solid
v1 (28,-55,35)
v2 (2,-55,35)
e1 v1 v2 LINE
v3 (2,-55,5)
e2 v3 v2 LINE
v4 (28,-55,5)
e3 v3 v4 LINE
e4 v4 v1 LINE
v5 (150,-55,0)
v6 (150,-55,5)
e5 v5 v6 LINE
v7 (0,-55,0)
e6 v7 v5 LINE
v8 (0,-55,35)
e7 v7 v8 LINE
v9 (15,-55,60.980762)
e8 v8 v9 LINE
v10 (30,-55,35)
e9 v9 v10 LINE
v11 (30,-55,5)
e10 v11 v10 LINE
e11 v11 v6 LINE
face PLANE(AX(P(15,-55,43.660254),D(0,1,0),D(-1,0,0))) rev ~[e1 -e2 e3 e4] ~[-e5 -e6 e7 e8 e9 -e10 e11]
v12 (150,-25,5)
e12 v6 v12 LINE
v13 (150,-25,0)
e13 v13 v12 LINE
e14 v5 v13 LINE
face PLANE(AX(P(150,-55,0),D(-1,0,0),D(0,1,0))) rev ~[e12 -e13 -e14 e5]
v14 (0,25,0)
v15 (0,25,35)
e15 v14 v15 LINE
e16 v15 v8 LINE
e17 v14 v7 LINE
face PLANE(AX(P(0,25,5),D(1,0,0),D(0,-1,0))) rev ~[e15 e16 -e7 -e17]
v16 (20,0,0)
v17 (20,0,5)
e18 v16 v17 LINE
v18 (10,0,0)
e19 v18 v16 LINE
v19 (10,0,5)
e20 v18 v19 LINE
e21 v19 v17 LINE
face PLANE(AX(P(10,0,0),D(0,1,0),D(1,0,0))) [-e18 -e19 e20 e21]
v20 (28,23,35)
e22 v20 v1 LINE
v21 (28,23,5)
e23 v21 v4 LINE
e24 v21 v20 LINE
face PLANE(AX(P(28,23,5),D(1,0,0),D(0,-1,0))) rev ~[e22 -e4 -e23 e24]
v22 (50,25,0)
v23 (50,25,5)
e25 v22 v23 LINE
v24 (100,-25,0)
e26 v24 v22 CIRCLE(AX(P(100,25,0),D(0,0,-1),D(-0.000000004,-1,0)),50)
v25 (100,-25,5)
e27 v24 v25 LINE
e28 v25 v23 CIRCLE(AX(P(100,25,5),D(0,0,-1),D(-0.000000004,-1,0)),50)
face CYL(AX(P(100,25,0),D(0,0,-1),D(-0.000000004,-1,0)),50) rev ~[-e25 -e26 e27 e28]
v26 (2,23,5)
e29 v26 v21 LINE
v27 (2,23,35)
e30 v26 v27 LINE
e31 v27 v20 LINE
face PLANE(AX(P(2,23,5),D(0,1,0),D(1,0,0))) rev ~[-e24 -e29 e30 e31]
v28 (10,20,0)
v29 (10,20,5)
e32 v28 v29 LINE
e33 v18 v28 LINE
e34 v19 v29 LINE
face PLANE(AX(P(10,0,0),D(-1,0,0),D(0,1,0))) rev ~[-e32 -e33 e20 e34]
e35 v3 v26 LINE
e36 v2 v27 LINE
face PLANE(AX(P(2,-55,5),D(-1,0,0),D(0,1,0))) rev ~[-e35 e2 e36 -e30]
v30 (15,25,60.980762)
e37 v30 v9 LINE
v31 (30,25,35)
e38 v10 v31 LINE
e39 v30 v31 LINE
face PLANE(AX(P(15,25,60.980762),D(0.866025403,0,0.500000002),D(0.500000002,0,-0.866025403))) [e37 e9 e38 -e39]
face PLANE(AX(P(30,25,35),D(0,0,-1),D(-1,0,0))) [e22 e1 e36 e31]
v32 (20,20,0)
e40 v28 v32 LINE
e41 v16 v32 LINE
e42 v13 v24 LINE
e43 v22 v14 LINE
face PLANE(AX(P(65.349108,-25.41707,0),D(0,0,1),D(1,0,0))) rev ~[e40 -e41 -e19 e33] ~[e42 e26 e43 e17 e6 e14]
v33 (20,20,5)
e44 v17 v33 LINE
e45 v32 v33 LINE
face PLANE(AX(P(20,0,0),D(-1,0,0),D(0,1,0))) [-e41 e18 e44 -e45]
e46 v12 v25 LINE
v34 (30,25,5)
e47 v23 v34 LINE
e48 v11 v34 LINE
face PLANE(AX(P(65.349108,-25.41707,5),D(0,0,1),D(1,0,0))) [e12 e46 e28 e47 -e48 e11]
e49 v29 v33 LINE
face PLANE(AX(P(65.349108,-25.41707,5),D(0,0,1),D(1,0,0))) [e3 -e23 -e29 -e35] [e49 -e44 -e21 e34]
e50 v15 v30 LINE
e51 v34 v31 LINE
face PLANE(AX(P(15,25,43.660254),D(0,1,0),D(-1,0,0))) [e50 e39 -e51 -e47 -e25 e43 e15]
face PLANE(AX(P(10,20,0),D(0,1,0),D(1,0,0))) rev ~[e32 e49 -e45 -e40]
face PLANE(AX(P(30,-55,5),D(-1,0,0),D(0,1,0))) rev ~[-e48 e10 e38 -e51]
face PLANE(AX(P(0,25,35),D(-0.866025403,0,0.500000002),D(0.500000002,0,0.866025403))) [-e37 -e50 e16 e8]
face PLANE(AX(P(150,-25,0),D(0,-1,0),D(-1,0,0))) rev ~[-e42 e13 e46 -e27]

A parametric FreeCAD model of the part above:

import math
import FreeCAD as App
import Part
import Sketcher
from FreeCAD import Vector
Q = App.Units.Quantity


def add_polygon(sketch, points):
    """Adds a closed chain of lines whose ends are joined by coincident constraints."""
    first, n = sketch.GeometryCount, len(points)
    for a, b in zip(points, points[1:] + points[:1]):
        sketch.addGeometry(Part.LineSegment(App.Vector(*a, 0), App.Vector(*b, 0)), False)
    for i in range(n):
        sketch.addConstraint(Sketcher.Constraint("Coincident", first + i, 2, first + (i + 1) % n, 1))

doc = App.newDocument("Part")
body = doc.addObject("PartDesign::Body", "Body")

# Sketch on XY plane
sketch1 = doc.addObject("Sketcher::SketchObject", "Sketch")
body.addObject(sketch1)
sketch1.AttachmentSupport = (doc.XY_Plane, [""])
sketch1.MapMode = "FlatFace"
sketch1.addGeometry(Part.LineSegment(Vector(150, -25, 0), Vector(100, -25, 0)), False)  # 0
sketch1.addGeometry(Part.ArcOfCircle(Part.Circle(Vector(100, 25, 0), Vector(0, 0, 1), 50), math.radians(-180), math.radians(-90)), False)  # 1
sketch1.addGeometry(Part.LineSegment(Vector(50, 25, 0), Vector(0, 25, 0)), False)  # 2
sketch1.addGeometry(Part.LineSegment(Vector(0, 25, 0), Vector(0, -55, 0)), False)  # 3
sketch1.addGeometry(Part.LineSegment(Vector(0, -55, 0), Vector(150, -55, 0)), False)  # 4
sketch1.addGeometry(Part.LineSegment(Vector(150, -55, 0), Vector(150, -25, 0)), False)  # 5
add_polygon(sketch1, [(20, 0), (10, 0), (10, 20), (20, 20)])  # lines 6-9
sketch1.addConstraint([
    Sketcher.Constraint("Tangent", 0, 2, 1, 2),
    Sketcher.Constraint("Coincident", 1, 1, 2, 1),
    Sketcher.Constraint("Coincident", 2, 2, 3, 1),
    Sketcher.Constraint("Coincident", 3, 2, 4, 1),
    Sketcher.Constraint("Coincident", 4, 2, 5, 1),
    Sketcher.Constraint("Coincident", 5, 2, 0, 1),
    Sketcher.Constraint("Horizontal", 0),
    Sketcher.Constraint("Horizontal", 2),
    Sketcher.Constraint("Vertical", 3),
    Sketcher.Constraint("Horizontal", 4),
    Sketcher.Constraint("Vertical", 5),
    Sketcher.Constraint("Horizontal", 6),
    Sketcher.Constraint("Vertical", 7),
    Sketcher.Constraint("Horizontal", 8),
    Sketcher.Constraint("Vertical", 9),
    Sketcher.Constraint("PointOnObject", 2, 2, -2),
    Sketcher.Constraint("PointOnObject", 6, 2, -1),
    Sketcher.Constraint("Equal", 0, 2),
    Sketcher.Constraint("Radius", 1, 50.0),
    Sketcher.Constraint("DistanceX", 0, 2, 0, 1, 50.0),
    Sketcher.Constraint("DistanceX", 6, 2, 6, 1, 10.0),
    Sketcher.Constraint("DistanceY", 3, 2, 3, 1, 80.0),
    Sketcher.Constraint("DistanceY", 5, 1, 5, 2, 30.0),
    Sketcher.Constraint("DistanceY", 7, 1, 7, 2, 20.0),
    Sketcher.Constraint("DistanceY", -1, 1, 1, 3, 25.0),
    Sketcher.Constraint("DistanceX", -1, 1, 6, 2, 10.0),
])
pad1 = doc.addObject("PartDesign::Pad", "Pad")
body.addObject(pad1)
pad1.Profile = sketch1
pad1.Length = 5

# Sketch on XY plane
sketch2 = doc.addObject("Sketcher::SketchObject", "Sketch001")
body.addObject(sketch2)
sketch2.AttachmentSupport = (doc.XY_Plane, [""])
sketch2.MapMode = "FlatFace"
sketch2.AttachmentOffset = App.Placement(Vector(0, 0, 5), App.Rotation())
add_polygon(sketch2, [(30, 25), (0, 25), (0, -55), (2, -55), (2, 23), (28, 23), (28, -55), (30, -55)])  # lines 0-7
sketch2.addConstraint([
    Sketcher.Constraint("Horizontal", 0),
    Sketcher.Constraint("Vertical", 1),
    Sketcher.Constraint("Horizontal", 2),
    Sketcher.Constraint("Vertical", 3),
    Sketcher.Constraint("Horizontal", 4),
    Sketcher.Constraint("Vertical", 5),
    Sketcher.Constraint("Horizontal", 6),
    Sketcher.Constraint("Vertical", 7),
    Sketcher.Constraint("PointOnObject", 0, 2, -2),
    Sketcher.Constraint("Horizontal", 2, 2, 5, 2),
    Sketcher.Constraint("Equal", 2, 6),
    Sketcher.Constraint("DistanceX", 0, 2, 0, 1, 30.0),
    Sketcher.Constraint("DistanceX", 2, 1, 2, 2, 2.0),
    Sketcher.Constraint("DistanceY", 1, 2, 1, 1, 80.0),
    Sketcher.Constraint("DistanceY", 3, 1, 3, 2, 78.0),
    Sketcher.Constraint("DistanceY", -1, 1, 0, 2, 25.0),
])
pad2 = doc.addObject("PartDesign::Pad", "Pad001")
body.addObject(pad2)
pad2.Profile = sketch2
pad2.Length = 30

# Sketch on XZ plane
sketch3 = doc.addObject("Sketcher::SketchObject", "Sketch002")
body.addObject(sketch3)
sketch3.AttachmentSupport = (doc.XZ_Plane, [""])
sketch3.MapMode = "FlatFace"
sketch3.AttachmentOffset = App.Placement(Vector(0, 0, -25), App.Rotation())
add_polygon(sketch3, [(15, 61), (30, 35), (0, 35)])  # lines 0-2
sketch3.addConstraint([
    Sketcher.Constraint("Horizontal", 1),
    Sketcher.Constraint("PointOnObject", 1, 2, -2),
    Sketcher.Constraint("Equal", 0, 2),
    Sketcher.Constraint("DistanceX", 1, 2, 1, 1, 30.0),
    Sketcher.Constraint("Angle", 0, Q("-60 deg")),
    Sketcher.Constraint("DistanceY", -1, 1, 0, 2, 35.0),
])
pad3 = doc.addObject("PartDesign::Pad", "Pad002")
body.addObject(pad3)
pad3.Profile = sketch3
pad3.Length = 80

doc.recompute()
